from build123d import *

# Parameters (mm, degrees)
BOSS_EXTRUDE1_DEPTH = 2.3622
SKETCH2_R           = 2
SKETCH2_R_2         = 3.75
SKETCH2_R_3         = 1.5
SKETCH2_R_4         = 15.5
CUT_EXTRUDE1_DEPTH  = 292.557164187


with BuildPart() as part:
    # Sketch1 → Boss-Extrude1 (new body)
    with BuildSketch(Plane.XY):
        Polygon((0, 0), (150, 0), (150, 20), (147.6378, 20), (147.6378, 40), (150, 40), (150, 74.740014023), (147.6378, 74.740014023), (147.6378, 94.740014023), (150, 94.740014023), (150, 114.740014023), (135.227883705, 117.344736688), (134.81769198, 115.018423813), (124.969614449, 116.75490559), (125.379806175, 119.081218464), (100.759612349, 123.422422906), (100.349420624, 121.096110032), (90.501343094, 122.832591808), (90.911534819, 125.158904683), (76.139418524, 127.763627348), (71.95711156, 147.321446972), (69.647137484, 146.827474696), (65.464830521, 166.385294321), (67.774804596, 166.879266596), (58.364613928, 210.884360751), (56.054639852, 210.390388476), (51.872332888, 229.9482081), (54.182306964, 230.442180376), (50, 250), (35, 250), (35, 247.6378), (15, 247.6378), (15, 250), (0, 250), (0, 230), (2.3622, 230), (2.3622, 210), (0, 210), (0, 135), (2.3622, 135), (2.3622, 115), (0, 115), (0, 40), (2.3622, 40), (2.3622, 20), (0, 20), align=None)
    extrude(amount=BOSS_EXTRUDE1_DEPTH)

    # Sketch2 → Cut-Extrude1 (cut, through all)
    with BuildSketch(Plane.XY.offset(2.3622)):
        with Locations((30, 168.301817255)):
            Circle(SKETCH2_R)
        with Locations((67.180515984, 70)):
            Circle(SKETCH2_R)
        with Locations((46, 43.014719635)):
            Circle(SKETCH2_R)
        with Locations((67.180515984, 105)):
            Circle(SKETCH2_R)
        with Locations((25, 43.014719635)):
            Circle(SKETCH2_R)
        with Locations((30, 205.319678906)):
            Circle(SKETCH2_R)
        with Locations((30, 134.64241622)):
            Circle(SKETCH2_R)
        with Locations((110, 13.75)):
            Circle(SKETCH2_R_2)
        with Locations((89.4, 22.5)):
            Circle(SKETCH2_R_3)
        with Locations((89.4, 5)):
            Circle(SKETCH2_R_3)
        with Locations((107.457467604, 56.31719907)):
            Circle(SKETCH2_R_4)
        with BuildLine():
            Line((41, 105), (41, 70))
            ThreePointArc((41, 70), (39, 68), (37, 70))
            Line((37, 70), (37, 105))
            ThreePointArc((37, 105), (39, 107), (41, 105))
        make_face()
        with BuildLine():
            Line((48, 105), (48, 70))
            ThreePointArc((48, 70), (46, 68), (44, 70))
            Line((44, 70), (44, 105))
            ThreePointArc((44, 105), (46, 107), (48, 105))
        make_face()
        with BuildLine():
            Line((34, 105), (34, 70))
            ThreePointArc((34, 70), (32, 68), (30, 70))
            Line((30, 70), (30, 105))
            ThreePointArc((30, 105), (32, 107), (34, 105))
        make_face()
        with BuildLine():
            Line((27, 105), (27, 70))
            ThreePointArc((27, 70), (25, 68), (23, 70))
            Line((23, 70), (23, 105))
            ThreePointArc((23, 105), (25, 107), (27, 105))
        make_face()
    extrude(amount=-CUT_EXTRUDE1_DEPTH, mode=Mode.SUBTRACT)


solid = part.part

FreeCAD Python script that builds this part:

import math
import FreeCAD as App
import Part
import Sketcher
Q = App.Units.Quantity

doc = App.newDocument("Part")
body = doc.addObject("PartDesign::Body", "Body")

# Sketch on XY plane
sketch1 = doc.addObject("Sketcher::SketchObject", "Sketch")
body.addObject(sketch1)
sketch1.AttachmentSupport = (doc.XY_Plane, [""])
sketch1.MapMode = "FlatFace"
sketch1.addGeometry([
    Part.LineSegment(App.Vector(0, 0, 0), App.Vector(150, 0, 0)),  # 0
    Part.LineSegment(App.Vector(150, 0, 0), App.Vector(150, 20, 0)),  # 1
    Part.LineSegment(App.Vector(150, 20, 0), App.Vector(147.6378, 20, 0)),  # 2
    Part.LineSegment(App.Vector(147.6378, 20, 0), App.Vector(147.6378, 40, 0)),  # 3
    Part.LineSegment(App.Vector(147.6378, 40, 0), App.Vector(150, 40, 0)),  # 4
    Part.LineSegment(App.Vector(150, 40, 0), App.Vector(150, 74.740014, 0)),  # 5
    Part.LineSegment(App.Vector(150, 74.740014, 0), App.Vector(147.6378, 74.740014, 0)),  # 6
    Part.LineSegment(App.Vector(147.6378, 74.740014, 0), App.Vector(147.6378, 94.740014, 0)),  # 7
    Part.LineSegment(App.Vector(147.6378, 94.740014, 0), App.Vector(150, 94.740014, 0)),  # 8
    Part.LineSegment(App.Vector(150, 94.740014, 0), App.Vector(150, 114.740014, 0)),  # 9
    Part.LineSegment(App.Vector(150, 114.740014, 0), App.Vector(135.227884, 117.344737, 0)),  # 10
    Part.LineSegment(App.Vector(135.227884, 117.344737, 0), App.Vector(134.817692, 115.018424, 0)),  # 11
    Part.LineSegment(App.Vector(134.817692, 115.018424, 0), App.Vector(124.969614, 116.754906, 0)),  # 12
    Part.LineSegment(App.Vector(124.969614, 116.754906, 0), App.Vector(125.379806, 119.081218, 0)),  # 13
    Part.LineSegment(App.Vector(125.379806, 119.081218, 0), App.Vector(100.759612, 123.422423, 0)),  # 14
    Part.LineSegment(App.Vector(100.759612, 123.422423, 0), App.Vector(100.349421, 121.09611, 0)),  # 15
    Part.LineSegment(App.Vector(100.349421, 121.09611, 0), App.Vector(90.501343, 122.832592, 0)),  # 16
    Part.LineSegment(App.Vector(90.501343, 122.832592, 0), App.Vector(90.911535, 125.158905, 0)),  # 17
    Part.LineSegment(App.Vector(90.911535, 125.158905, 0), App.Vector(76.139419, 127.763627, 0)),  # 18
    Part.LineSegment(App.Vector(76.139419, 127.763627, 0), App.Vector(71.957112, 147.321447, 0)),  # 19
    Part.LineSegment(App.Vector(71.957112, 147.321447, 0), App.Vector(69.647137, 146.827475, 0)),  # 20
    Part.LineSegment(App.Vector(69.647137, 146.827475, 0), App.Vector(65.464831, 166.385294, 0)),  # 21
    Part.LineSegment(App.Vector(65.464831, 166.385294, 0), App.Vector(67.774805, 166.879267, 0)),  # 22
    Part.LineSegment(App.Vector(67.774805, 166.879267, 0), App.Vector(58.364614, 210.884361, 0)),  # 23
    Part.LineSegment(App.Vector(58.364614, 210.884361, 0), App.Vector(56.05464, 210.390388, 0)),  # 24
    Part.LineSegment(App.Vector(56.05464, 210.390388, 0), App.Vector(51.872333, 229.948208, 0)),  # 25
    Part.LineSegment(App.Vector(51.872333, 229.948208, 0), App.Vector(54.182307, 230.44218, 0)),  # 26
    Part.LineSegment(App.Vector(54.182307, 230.44218, 0), App.Vector(50, 250, 0)),  # 27
    Part.LineSegment(App.Vector(50, 250, 0), App.Vector(35, 250, 0)),  # 28
    Part.LineSegment(App.Vector(35, 250, 0), App.Vector(35, 247.6378, 0)),  # 29
    Part.LineSegment(App.Vector(35, 247.6378, 0), App.Vector(15, 247.6378, 0)),  # 30
    Part.LineSegment(App.Vector(15, 247.6378, 0), App.Vector(15, 250, 0)),  # 31
    Part.LineSegment(App.Vector(15, 250, 0), App.Vector(0, 250, 0)),  # 32
    Part.LineSegment(App.Vector(0, 250, 0), App.Vector(0, 230, 0)),  # 33
    Part.LineSegment(App.Vector(0, 230, 0), App.Vector(2.3622, 230, 0)),  # 34
    Part.LineSegment(App.Vector(2.3622, 230, 0), App.Vector(2.3622, 210, 0)),  # 35
    Part.LineSegment(App.Vector(2.3622, 210, 0), App.Vector(0, 210, 0)),  # 36
    Part.LineSegment(App.Vector(0, 210, 0), App.Vector(0, 135, 0)),  # 37
    Part.LineSegment(App.Vector(0, 135, 0), App.Vector(2.3622, 135, 0)),  # 38
    Part.LineSegment(App.Vector(2.3622, 135, 0), App.Vector(2.3622, 115, 0)),  # 39
    Part.LineSegment(App.Vector(2.3622, 115, 0), App.Vector(0, 115, 0)),  # 40
    Part.LineSegment(App.Vector(0, 115, 0), App.Vector(0, 40, 0)),  # 41
    Part.LineSegment(App.Vector(0, 40, 0), App.Vector(2.3622, 40, 0)),  # 42
    Part.LineSegment(App.Vector(2.3622, 40, 0), App.Vector(2.3622, 20, 0)),  # 43
    Part.LineSegment(App.Vector(2.3622, 20, 0), App.Vector(0, 20, 0)),  # 44
    Part.LineSegment(App.Vector(0, 20, 0), App.Vector(0, 0, 0)),  # 45
], False)
sketch1.addConstraint([
    Sketcher.Constraint("Coincident", 0, 2, 1, 1),
    Sketcher.Constraint("Coincident", 1, 2, 2, 1),
    Sketcher.Constraint("Coincident", 2, 2, 3, 1),
    Sketcher.Constraint("Coincident", 3, 2, 4, 1),
    Sketcher.Constraint("Coincident", 4, 2, 5, 1),
    Sketcher.Constraint("Coincident", 5, 2, 6, 1),
    Sketcher.Constraint("Coincident", 6, 2, 7, 1),
    Sketcher.Constraint("Coincident", 7, 2, 8, 1),
    Sketcher.Constraint("Coincident", 8, 2, 9, 1),
    Sketcher.Constraint("Coincident", 9, 2, 10, 1),
    Sketcher.Constraint("Coincident", 10, 2, 11, 1),
    Sketcher.Constraint("Coincident", 11, 2, 12, 1),
    Sketcher.Constraint("Coincident", 12, 2, 13, 1),
    Sketcher.Constraint("Coincident", 13, 2, 14, 1),
    Sketcher.Constraint("Coincident", 14, 2, 15, 1),
    Sketcher.Constraint("Coincident", 15, 2, 16, 1),
    Sketcher.Constraint("Coincident", 16, 2, 17, 1),
    Sketcher.Constraint("Coincident", 17, 2, 18, 1),
    Sketcher.Constraint("Coincident", 18, 2, 19, 1),
    Sketcher.Constraint("Coincident", 19, 2, 20, 1),
    Sketcher.Constraint("Coincident", 20, 2, 21, 1),
    Sketcher.Constraint("Coincident", 21, 2, 22, 1),
    Sketcher.Constraint("Coincident", 22, 2, 23, 1),
    Sketcher.Constraint("Coincident", 23, 2, 24, 1),
    Sketcher.Constraint("Coincident", 24, 2, 25, 1),
    Sketcher.Constraint("Coincident", 25, 2, 26, 1),
    Sketcher.Constraint("Coincident", 26, 2, 27, 1),
    Sketcher.Constraint("Coincident", 27, 2, 28, 1),
    Sketcher.Constraint("Coincident", 28, 2, 29, 1),
    Sketcher.Constraint("Coincident", 29, 2, 30, 1),
    Sketcher.Constraint("Coincident", 30, 2, 31, 1),
    Sketcher.Constraint("Coincident", 31, 2, 32, 1),
    Sketcher.Constraint("Coincident", 32, 2, 33, 1),
    Sketcher.Constraint("Coincident", 33, 2, 34, 1),
    Sketcher.Constraint("Coincident", 34, 2, 35, 1),
    Sketcher.Constraint("Coincident", 35, 2, 36, 1),
    Sketcher.Constraint("Coincident", 36, 2, 37, 1),
    Sketcher.Constraint("Coincident", 37, 2, 38, 1),
    Sketcher.Constraint("Coincident", 38, 2, 39, 1),
    Sketcher.Constraint("Coincident", 39, 2, 40, 1),
    Sketcher.Constraint("Coincident", 40, 2, 41, 1),
    Sketcher.Constraint("Coincident", 41, 2, 42, 1),
    Sketcher.Constraint("Coincident", 42, 2, 43, 1),
    Sketcher.Constraint("Coincident", 43, 2, 44, 1),
    Sketcher.Constraint("Coincident", 44, 2, 45, 1),
    Sketcher.Constraint("Coincident", 45, 2, 0, 1),
    Sketcher.Constraint("Horizontal", 0),
    Sketcher.Constraint("Vertical", 1),
    Sketcher.Constraint("Horizontal", 2),
    Sketcher.Constraint("Vertical", 3),
    Sketcher.Constraint("Horizontal", 4),
    Sketcher.Constraint("Vertical", 5),
    Sketcher.Constraint("Horizontal", 6),
    Sketcher.Constraint("Vertical", 7),
    Sketcher.Constraint("Horizontal", 8),
    Sketcher.Constraint("Vertical", 9),
    Sketcher.Constraint("Horizontal", 28),
    Sketcher.Constraint("Vertical", 29),
    Sketcher.Constraint("Horizontal", 30),
    Sketcher.Constraint("Vertical", 31),
    Sketcher.Constraint("Horizontal", 32),
    Sketcher.Constraint("Vertical", 33),
    Sketcher.Constraint("Horizontal", 34),
    Sketcher.Constraint("Vertical", 35),
    Sketcher.Constraint("Horizontal", 36),
    Sketcher.Constraint("Vertical", 37),
    Sketcher.Constraint("Horizontal", 38),
    Sketcher.Constraint("Vertical", 39),
    Sketcher.Constraint("Horizontal", 40),
    Sketcher.Constraint("Vertical", 41),
    Sketcher.Constraint("Horizontal", 42),
    Sketcher.Constraint("Vertical", 43),
    Sketcher.Constraint("Horizontal", 44),
    Sketcher.Constraint("Vertical", 45),
    Sketcher.Constraint("Coincident", 45, 2, -1, 1),
    Sketcher.Constraint("PointOnObject", 32, 2, -2),
    Sketcher.Constraint("PointOnObject", 36, 2, -2),
    Sketcher.Constraint("PointOnObject", 40, 2, -2),
    Sketcher.Constraint("Perpendicular", 10, 11),
    Sketcher.Constraint("Perpendicular", 11, 12),
    Sketcher.Constraint("Perpendicular", 12, 13),
    Sketcher.Constraint("Perpendicular", 13, 14),
    Sketcher.Constraint("Perpendicular", 14, 15),
    Sketcher.Constraint("Perpendicular", 15, 16),
    Sketcher.Constraint("Perpendicular", 16, 17),
    Sketcher.Constraint("Perpendicular", 17, 18),
    Sketcher.Constraint("Perpendicular", 19, 20),
    Sketcher.Constraint("Perpendicular", 20, 21),
    Sketcher.Constraint("Perpendicular", 21, 22),
    Sketcher.Constraint("Perpendicular", 22, 23),
    Sketcher.Constraint("Perpendicular", 23, 24),
    Sketcher.Constraint("Perpendicular", 24, 25),
    Sketcher.Constraint("Perpendicular", 25, 26),
    Sketcher.Constraint("Perpendicular", 26, 27),
    Sketcher.Constraint("Horizontal", 28, 2, 31, 2),
    Sketcher.Constraint("Horizontal", 4, 2, 41, 2),
    Sketcher.Constraint("Horizontal", 2, 2, 43, 2),
    Sketcher.Constraint("Vertical", 1, 2, 4, 2),
    Sketcher.Constraint("Vertical", 3, 2, 6, 2),
    Sketcher.Constraint("Vertical", 5, 2, 8, 2),
    Sketcher.Constraint("Vertical", 35, 2, 38, 2),
    Sketcher.Constraint("Vertical", 39, 2, 42, 2),
    Sketcher.Constraint("Equal", 28, 32),
    Sketcher.Constraint("Equal", 8, 34),
    Sketcher.Constraint("Equal", 30, 1),
    Sketcher.Constraint("Equal", 1, 3),
    Sketcher.Constraint("Equal", 3, 7),
    Sketcher.Constraint("Equal", 7, 9),
    Sketcher.Constraint("Equal", 44, 29),
    Sketcher.Constraint("Equal", 9, 33),
    Sketcher.Constraint("Equal", 33, 35),
    Sketcher.Constraint("Equal", 35, 39),
    Sketcher.Constraint("Equal", 37, 41),
    Sketcher.Constraint("Equal", 11, 13),
    Sketcher.Constraint("Equal", 13, 15),
    Sketcher.Constraint("Equal", 12, 16),
    Sketcher.Constraint("Equal", 15, 17),
    Sketcher.Constraint("Equal", 10, 18),
    Sketcher.Constraint("Equal", 17, 20),
    Sketcher.Constraint("Equal", 19, 21),
    Sketcher.Constraint("Equal", 20, 22),
    Sketcher.Constraint("Equal", 22, 24),
    Sketcher.Constraint("Equal", 21, 25),
    Sketcher.Constraint("Equal", 24, 26),
    Sketcher.Constraint("Equal", 25, 27),
    Sketcher.Constraint("DistanceX", 0, 1, 0, 2, 150.0),
    Sketcher.Constraint("DistanceX", 28, 2, 28, 1, 15.0),
    Sketcher.Constraint("DistanceX", 30, 2, 30, 1, 20.0),
    Sketcher.Constraint("DistanceY", 37, 2, 37, 1, 75.0),
    Sketcher.Constraint("Angle", 10, Q("170 deg")),
    Sketcher.Constraint("Distance", 10, 15.0),
    Sketcher.Constraint("Distance", 12, 10.0),
    Sketcher.Constraint("Distance", 14, 25.0),
    Sketcher.Constraint("Distance", 19, 20.0),
    Sketcher.Constraint("Distance", 23, 45.0),
    Sketcher.Constraint("DistanceX", 2, 2, 2, 1, 2.3622),
    Sketcher.Constraint("DistanceY", 11, 2, 14, 2, 8.403999),
])
pad1 = doc.addObject("PartDesign::Pad", "Pad")
body.addObject(pad1)
pad1.Profile = sketch1
pad1.Length = 2.3622

# Sketch on XY plane
sketch2 = doc.addObject("Sketcher::SketchObject", "Sketch001")
body.addObject(sketch2)
sketch2.AttachmentSupport = (doc.XY_Plane, [""])
sketch2.MapMode = "FlatFace"
sketch2.AttachmentOffset = App.Placement(App.Vector(0, 0, 2.3622), App.Rotation())
sketch2.addGeometry([
    Part.Circle(App.Vector(30, 168.301817, 0), App.Vector(0, 0, 1), 2),  # 0
    Part.Circle(App.Vector(67.180516, 70, 0), App.Vector(0, 0, 1), 2),  # 1
    Part.Circle(App.Vector(46, 43.01472, 0), App.Vector(0, 0, 1), 2),  # 2
    Part.Circle(App.Vector(67.180516, 105, 0), App.Vector(0, 0, 1), 2),  # 3
    Part.Circle(App.Vector(25, 43.01472, 0), App.Vector(0, 0, 1), 2),  # 4
    Part.Circle(App.Vector(30, 205.319679, 0), App.Vector(0, 0, 1), 2),  # 5
    Part.Circle(App.Vector(30, 134.642416, 0), App.Vector(0, 0, 1), 2),  # 6
    Part.Circle(App.Vector(110, 13.75, 0), App.Vector(0, 0, 1), 3.75),  # 7
    Part.Circle(App.Vector(89.4, 22.5, 0), App.Vector(0, 0, 1), 1.5),  # 8
    Part.Circle(App.Vector(89.4, 5, 0), App.Vector(0, 0, 1), 1.5),  # 9
    Part.Circle(App.Vector(107.457468, 56.317199, 0), App.Vector(0, 0, 1), 15.5),  # 10
    Part.LineSegment(App.Vector(41, 70, 0), App.Vector(41, 105, 0)),  # 11
    Part.ArcOfCircle(Part.Circle(App.Vector(39, 105, 0), App.Vector(0, 0, 1), 2), math.radians(0), math.radians(180)),  # 12
    Part.LineSegment(App.Vector(37, 105, 0), App.Vector(37, 70, 0)),  # 13
    Part.ArcOfCircle(Part.Circle(App.Vector(39, 70, 0), App.Vector(0, 0, 1), 2), math.radians(180), math.radians(360)),  # 14
    Part.LineSegment(App.Vector(48, 70, 0), App.Vector(48, 105, 0)),  # 15
    Part.ArcOfCircle(Part.Circle(App.Vector(46, 105, 0), App.Vector(0, 0, 1), 2), math.radians(0), math.radians(180)),  # 16
    Part.LineSegment(App.Vector(44, 105, 0), App.Vector(44, 70, 0)),  # 17
    Part.ArcOfCircle(Part.Circle(App.Vector(46, 70, 0), App.Vector(0, 0, 1), 2), math.radians(180), math.radians(360)),  # 18
    Part.LineSegment(App.Vector(34, 70, 0), App.Vector(34, 105, 0)),  # 19
    Part.ArcOfCircle(Part.Circle(App.Vector(32, 105, 0), App.Vector(0, 0, 1), 2), math.radians(0), math.radians(180)),  # 20
    Part.LineSegment(App.Vector(30, 105, 0), App.Vector(30, 70, 0)),  # 21
    Part.ArcOfCircle(Part.Circle(App.Vector(32, 70, 0), App.Vector(0, 0, 1), 2), math.radians(180), math.radians(360)),  # 22
    Part.LineSegment(App.Vector(27, 70, 0), App.Vector(27, 105, 0)),  # 23
    Part.ArcOfCircle(Part.Circle(App.Vector(25, 105, 0), App.Vector(0, 0, 1), 2), math.radians(0), math.radians(180)),  # 24
    Part.LineSegment(App.Vector(23, 105, 0), App.Vector(23, 70, 0)),  # 25
    Part.ArcOfCircle(Part.Circle(App.Vector(25, 70, 0), App.Vector(0, 0, 1), 2), math.radians(180), math.radians(360)),  # 26
], False)
sketch2.addConstraint([
    Sketcher.Constraint("Tangent", 11, 2, 12, 1),
    Sketcher.Constraint("Tangent", 12, 2, 13, 1),
    Sketcher.Constraint("Tangent", 13, 2, 14, 1),
    Sketcher.Constraint("Tangent", 14, 2, 11, 1),
    Sketcher.Constraint("Tangent", 15, 2, 16, 1),
    Sketcher.Constraint("Tangent", 16, 2, 17, 1),
    Sketcher.Constraint("Tangent", 17, 2, 18, 1),
    Sketcher.Constraint("Tangent", 18, 2, 15, 1),
    Sketcher.Constraint("Tangent", 19, 2, 20, 1),
    Sketcher.Constraint("Tangent", 20, 2, 21, 1),
    Sketcher.Constraint("Tangent", 21, 2, 22, 1),
    Sketcher.Constraint("Tangent", 22, 2, 19, 1),
    Sketcher.Constraint("Tangent", 23, 2, 24, 1),
    Sketcher.Constraint("Tangent", 24, 2, 25, 1),
    Sketcher.Constraint("Tangent", 25, 2, 26, 1),
    Sketcher.Constraint("Tangent", 26, 2, 23, 1),
    Sketcher.Constraint("Vertical", 11),
    Sketcher.Constraint("Vertical", 13),
    Sketcher.Constraint("Vertical", 15),
    Sketcher.Constraint("Vertical", 17),
    Sketcher.Constraint("Vertical", 19),
    Sketcher.Constraint("Vertical", 21),
    Sketcher.Constraint("Vertical", 23),
    Sketcher.Constraint("Vertical", 25),
    Sketcher.Constraint("Equal", 0, 1),
    Sketcher.Constraint("Equal", 1, 2),
    Sketcher.Constraint("Equal", 2, 3),
    Sketcher.Constraint("Equal", 3, 4),
    Sketcher.Constraint("Equal", 4, 5),
    Sketcher.Constraint("Equal", 5, 6),
    Sketcher.Constraint("Equal", 8, 9),
    Sketcher.Constraint("Equal", 6, 12),
    Sketcher.Constraint("Equal", 14, 16),
    Sketcher.Constraint("Equal", 18, 20),
    Sketcher.Constraint("Equal", 22, 24),
    Sketcher.Constraint("Horizontal", 2, 3, 4, 3),
    Sketcher.Constraint("Horizontal", 3, 3, 12, 3),
    Sketcher.Constraint("Horizontal", 1, 3, 14, 3),
    Sketcher.Constraint("Horizontal", 12, 3, 16, 3),
    Sketcher.Constraint("Horizontal", 14, 3, 18, 3),
    Sketcher.Constraint("Horizontal", 16, 3, 20, 3),
    Sketcher.Constraint("Horizontal", 18, 3, 22, 3),
    Sketcher.Constraint("Horizontal", 20, 3, 24, 3),
    Sketcher.Constraint("Horizontal", 22, 3, 26, 3),
    Sketcher.Constraint("Vertical", 1, 3, 3, 3),
    Sketcher.Constraint("Vertical", 0, 3, 5, 3),
    Sketcher.Constraint("Vertical", 5, 3, 6, 3),
    Sketcher.Constraint("Vertical", 8, 3, 9, 3),
    Sketcher.Constraint("Vertical", 2, 3, 16, 3),
    Sketcher.Constraint("Vertical", 4, 3, 24, 3),
    Sketcher.Constraint("Vertical", 6, 3, 20, 2),
    Sketcher.Constraint("Diameter", 0, 4.0),
    Sketcher.Constraint("Diameter", 8, 3.0),
    Sketcher.Constraint("Diameter", 10, 31.0),
    Sketcher.Constraint("Diameter", 7, 7.5),
    Sketcher.Constraint("DistanceY", 11, 1, 11, 2, 35.0),
    Sketcher.Constraint("DistanceX", -1, 1, 0, 3, 30.0),
    Sketcher.Constraint("DistanceY", -1, 1, 1, 3, 70.0),
    Sketcher.Constraint("DistanceX", -1, 1, 2, 3, 46.0),
    Sketcher.Constraint("DistanceX", -1, 1, 4, 3, 25.0),
    Sketcher.Constraint("DistanceX", -1, 1, 7, 3, 110.0),
    Sketcher.Constraint("DistanceY", -1, 1, 9, 3, 5.0),
    Sketcher.Constraint("DistanceX", -1, 1, 12, 3, 39.0),
    Sketcher.Constraint("DistanceX", -1, 1, 8, 3, 89.4),
    Sketcher.Constraint("DistanceY", -1, 1, 8, 3, 22.5),
    Sketcher.Constraint("DistanceY", -1, 1, 7, 3, 13.75),
    Sketcher.Constraint("DistanceY", -1, 1, 10, 3, 56.317199),
    Sketcher.Constraint("DistanceY", 6, 3, 0, 3, 33.659401),
    Sketcher.Constraint("DistanceY", -1, 1, 2, 3, 43.01472),
    Sketcher.Constraint("DistanceY", -1, 1, 5, 3, 205.319679),
    Sketcher.Constraint("DistanceY", 0, 3, 5, 3, 37.017862),
    Sketcher.Constraint("DistanceX", 1, 3, 10, 3, 40.276952),
    Sketcher.Constraint("DistanceX", -1, 1, 1, 3, 67.180516),
])
pocket1 = doc.addObject("PartDesign::Pocket", "Pocket")
body.addObject(pocket1)
pocket1.Profile = sketch2
pocket1.Type = "ThroughAll"

doc.recompute()
